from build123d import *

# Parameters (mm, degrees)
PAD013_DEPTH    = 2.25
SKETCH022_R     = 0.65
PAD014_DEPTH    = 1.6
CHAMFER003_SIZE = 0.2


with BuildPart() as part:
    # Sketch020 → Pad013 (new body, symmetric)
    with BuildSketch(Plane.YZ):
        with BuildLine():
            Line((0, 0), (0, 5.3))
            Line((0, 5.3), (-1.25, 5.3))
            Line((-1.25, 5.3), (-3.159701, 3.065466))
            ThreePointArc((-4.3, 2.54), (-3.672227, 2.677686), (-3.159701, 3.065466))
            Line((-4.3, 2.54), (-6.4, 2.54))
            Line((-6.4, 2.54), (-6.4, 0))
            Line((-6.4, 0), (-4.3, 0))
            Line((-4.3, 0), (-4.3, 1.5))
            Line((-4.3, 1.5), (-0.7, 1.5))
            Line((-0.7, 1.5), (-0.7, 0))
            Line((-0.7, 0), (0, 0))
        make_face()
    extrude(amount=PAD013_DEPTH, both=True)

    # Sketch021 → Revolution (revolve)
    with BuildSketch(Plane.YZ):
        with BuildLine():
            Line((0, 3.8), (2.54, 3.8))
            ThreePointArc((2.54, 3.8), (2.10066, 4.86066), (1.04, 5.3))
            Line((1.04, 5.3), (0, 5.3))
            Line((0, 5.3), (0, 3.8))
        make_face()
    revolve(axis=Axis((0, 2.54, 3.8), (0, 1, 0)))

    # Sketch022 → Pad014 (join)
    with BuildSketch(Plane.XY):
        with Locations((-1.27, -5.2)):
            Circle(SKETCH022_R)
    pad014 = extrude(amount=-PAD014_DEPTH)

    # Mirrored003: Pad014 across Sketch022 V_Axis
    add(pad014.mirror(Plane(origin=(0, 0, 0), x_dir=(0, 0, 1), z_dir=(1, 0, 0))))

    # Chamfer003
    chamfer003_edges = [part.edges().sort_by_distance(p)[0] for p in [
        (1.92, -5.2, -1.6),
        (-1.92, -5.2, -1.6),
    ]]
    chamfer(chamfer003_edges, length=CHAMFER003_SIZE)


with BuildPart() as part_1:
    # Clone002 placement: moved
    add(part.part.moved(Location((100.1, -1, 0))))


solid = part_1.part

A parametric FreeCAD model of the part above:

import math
import FreeCAD as App
import Part
import Sketcher


def edges_at(feature, points):
    """Names of the edges that pass closest to the given points."""
    edges = feature.Shape.Edges
    near = lambda p: min(range(len(edges)), key=lambda i: edges[i].distToShape(Part.Vertex(*p))[0])
    return sorted({f"Edge{near(p) + 1}" for p in points})

doc = App.newDocument("Part")
body = doc.addObject("PartDesign::Body", "Body")

sketch1 = body.newObject("Sketcher::SketchObject", "Sketch")
sketch1.AttachmentSupport = (doc.getObject("YZ_Plane"), [""])
sketch1.MapMode = "FlatFace"
sketch1.addGeometry([
    Part.LineSegment(App.Vector(0, 0, 0), App.Vector(0, 5.3, 0)),
    Part.LineSegment(App.Vector(0, 5.3, 0), App.Vector(-1.2, 5.3, 0)),
    Part.LineSegment(App.Vector(-1.2, 5.3, 0), App.Vector(-3.2, 3.1, 0)),
    Part.ArcOfCircle(Part.Circle(App.Vector(-4.3, 4, 0), App.Vector(0, 0, 1), 1.5), math.radians(-90), math.radians(-41)),
    Part.LineSegment(App.Vector(-4.3, 2.5, 0), App.Vector(-6.4, 2.5, 0)),
    Part.LineSegment(App.Vector(-6.4, 2.5, 0), App.Vector(-6.4, 0, 0)),
    Part.LineSegment(App.Vector(-6.4, 0, 0), App.Vector(-4.3, 0, 0)),
    Part.LineSegment(App.Vector(-4.3, 0, 0), App.Vector(-4.3, 1.5, 0)),
    Part.LineSegment(App.Vector(-4.3, 1.5, 0), App.Vector(-0.7, 1.5, 0)),
    Part.LineSegment(App.Vector(-0.7, 1.5, 0), App.Vector(-0.7, 0, 0)),
    Part.LineSegment(App.Vector(-0.7, 0, 0), App.Vector(0, 0, 0)),
], False)
sketch1.addConstraint([
    Sketcher.Constraint("Coincident", 0, 2, 1, 1),
    Sketcher.Constraint("Coincident", 1, 2, 2, 1),
    Sketcher.Constraint("Tangent", 2, 2, 3, 2),
    Sketcher.Constraint("Tangent", 3, 1, 4, 1),
    Sketcher.Constraint("Coincident", 4, 2, 5, 1),
    Sketcher.Constraint("Coincident", 5, 2, 6, 1),
    Sketcher.Constraint("Coincident", 6, 2, 7, 1),
    Sketcher.Constraint("Coincident", 7, 2, 8, 1),
    Sketcher.Constraint("Coincident", 8, 2, 9, 1),
    Sketcher.Constraint("Coincident", 9, 2, 10, 1),
    Sketcher.Constraint("Coincident", 10, 2, 0, 1),
    Sketcher.Constraint("Vertical", 0),
    Sketcher.Constraint("Horizontal", 1),
    Sketcher.Constraint("Horizontal", 4),
    Sketcher.Constraint("Vertical", 5),
    Sketcher.Constraint("Horizontal", 6),
    Sketcher.Constraint("Vertical", 7),
    Sketcher.Constraint("Horizontal", 8),
    Sketcher.Constraint("Vertical", 9),
    Sketcher.Constraint("Horizontal", 10),
    Sketcher.Constraint("Coincident", 10, 2, -1, 1),
    Sketcher.Constraint("PointOnObject", 5, 2, -1),
    Sketcher.Constraint("Vertical", 3, 1, 6, 2),
    Sketcher.Constraint("DistanceX", 4, 2, 4, 1, 2.1),
    Sketcher.Constraint("DistanceX", 8, 1, 8, 2, 3.6),
    Sketcher.Constraint("DistanceX", 10, 1, 10, 2, 0.7),
    Sketcher.Constraint("DistanceY", 0, 1, 0, 2, 5.3),
    Sketcher.Constraint("DistanceY", 7, 1, 7, 2, 1.5),
    Sketcher.Constraint("DistanceX", 1, 2, 1, 1, 1.25),
    Sketcher.Constraint("DistanceY", 5, 2, 5, 1, 2.54),
    Sketcher.Constraint("Radius", 3, 1.500002),
])
pad1 = body.newObject("PartDesign::Pad", "Pad")
pad1.Profile = sketch1
pad1.Length = 4.5
pad1.Midplane = True

sketch2 = body.newObject("Sketcher::SketchObject", "Sketch001")
sketch2.AttachmentSupport = (doc.getObject("YZ_Plane"), [""])
sketch2.MapMode = "FlatFace"
sketch2.addGeometry([
    Part.LineSegment(App.Vector(0, 3.8, 0), App.Vector(2.5, 3.8, 0)),
    Part.ArcOfCircle(Part.Circle(App.Vector(1, 3.8, 0), App.Vector(0, 0, 1), 1.5), math.radians(0), math.radians(90)),
    Part.LineSegment(App.Vector(1, 5.3, 0), App.Vector(0, 5.3, 0)),
    Part.LineSegment(App.Vector(0, 5.3, 0), App.Vector(0, 3.8, 0)),
], False)
sketch2.addGeometry(Part.LineSegment(App.Vector(0, 3.8, 0), App.Vector(2.5, 3.8, 0)), True)
sketch2.addConstraint([
    Sketcher.Constraint("Coincident", 0, 2, 1, 1),
    Sketcher.Constraint("Tangent", 1, 2, 2, 1),
    Sketcher.Constraint("Coincident", 2, 2, 3, 1),
    Sketcher.Constraint("Coincident", 3, 2, 0, 1),
    Sketcher.Constraint("Horizontal", 0),
    Sketcher.Constraint("Horizontal", 2),
    Sketcher.Constraint("Vertical", 3),
    Sketcher.Constraint("Horizontal", 4),
    Sketcher.Constraint("Coincident", 4, 1, 3, 2),
    Sketcher.Constraint("PointOnObject", 2, 2, -2),
    Sketcher.Constraint("Horizontal", 1, 3, 0, 2),
    Sketcher.Constraint("Equal", 0, 4),
    Sketcher.Constraint("Radius", 1, 1.500001),
    Sketcher.Constraint("DistanceX", 0, 1, 0, 2, 2.54),
    Sketcher.Constraint("DistanceY", -1, 1, 1, 3, 3.799999),
])
revolution = body.newObject("PartDesign::Revolution", "Revolution")
revolution.Profile = sketch2
revolution.ReferenceAxis = (sketch2, ["Axis0"])
revolution.Angle = 360

sketch3 = body.newObject("Sketcher::SketchObject", "Sketch002")
sketch3.AttachmentSupport = (doc.getObject("XY_Plane"), [""])
sketch3.MapMode = "FlatFace"
sketch3.addGeometry(Part.Circle(App.Vector(-1.3, -5.2, 0), App.Vector(0, 0, 1), 0.7), False)
sketch3.addConstraint([
    Sketcher.Constraint("Diameter", 0, 1.3),
    Sketcher.Constraint("DistanceY", 0, 3, -1, 1, 5.2),
    Sketcher.Constraint("DistanceX", 0, 3, -1, 1, 1.27),
])
pad2 = body.newObject("PartDesign::Pad", "Pad001")
pad2.Profile = sketch3
pad2.Length = 1.6
pad2.Reversed = True
doc.recompute()

mirrored = body.newObject("PartDesign::Mirrored", "Mirrored")
mirrored.Originals = [pad2]
mirrored.MirrorPlane = (doc.getObject("YZ_Plane"), [""])
body.Tip = mirrored
doc.recompute()

chamfer = body.newObject("PartDesign::Chamfer", "Chamfer")
chamfer.Base = (mirrored, edges_at(mirrored, [(1.92, -5.2, -1.6), (-1.92, -5.2, -1.6)]))
chamfer.Size = 0.2
body2 = doc.addObject("PartDesign::Body", "Body001")
doc.recompute()

body.Placement = App.Placement(App.Vector(100.1, -1, 0), App.Rotation(App.Vector(0, 0, 1), 0))
boolean = body2.newObject("PartDesign::Boolean", "Boolean")
boolean.Type = "Fuse"
boolean.addObjects([body])

doc.recompute()
